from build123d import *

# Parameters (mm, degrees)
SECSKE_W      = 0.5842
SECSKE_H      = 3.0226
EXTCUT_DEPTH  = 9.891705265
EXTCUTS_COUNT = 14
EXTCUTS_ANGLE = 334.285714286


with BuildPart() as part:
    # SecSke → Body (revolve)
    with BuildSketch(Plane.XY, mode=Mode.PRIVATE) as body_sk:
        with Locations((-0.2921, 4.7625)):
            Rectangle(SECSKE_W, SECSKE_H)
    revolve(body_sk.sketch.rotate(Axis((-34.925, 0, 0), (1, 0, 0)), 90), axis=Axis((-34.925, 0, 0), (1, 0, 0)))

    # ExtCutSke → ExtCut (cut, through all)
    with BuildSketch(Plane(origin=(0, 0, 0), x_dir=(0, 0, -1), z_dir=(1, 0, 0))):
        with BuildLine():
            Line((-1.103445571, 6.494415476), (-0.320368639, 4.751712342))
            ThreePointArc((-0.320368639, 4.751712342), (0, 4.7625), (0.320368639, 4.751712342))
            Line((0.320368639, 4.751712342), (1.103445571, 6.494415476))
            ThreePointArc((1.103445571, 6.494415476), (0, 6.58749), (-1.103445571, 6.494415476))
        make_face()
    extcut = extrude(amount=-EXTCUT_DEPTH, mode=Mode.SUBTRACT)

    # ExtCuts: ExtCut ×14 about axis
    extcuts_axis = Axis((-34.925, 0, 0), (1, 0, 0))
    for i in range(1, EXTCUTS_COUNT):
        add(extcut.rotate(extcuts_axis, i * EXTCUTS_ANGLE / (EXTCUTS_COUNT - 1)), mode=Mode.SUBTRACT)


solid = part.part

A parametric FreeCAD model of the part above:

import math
import FreeCAD as App
import Part
import Sketcher
Q = App.Units.Quantity

doc = App.newDocument("Part")
body = doc.addObject("PartDesign::Body", "Body")

# Sketch on XY plane
sketch1 = doc.addObject("Sketcher::SketchObject", "Sketch")
body.addObject(sketch1)
sketch1.AttachmentSupport = (doc.XY_Plane, [""])
sketch1.MapMode = "FlatFace"
sketch1.addGeometry(Part.LineSegment(App.Vector(-0.6, 6.3, 0), App.Vector(-0.6, 3.3, 0)), False)
sketch1.addGeometry(Part.LineSegment(App.Vector(-0.6, 3.3, 0), App.Vector(0, 3.3, 0)), False)
sketch1.addGeometry(Part.LineSegment(App.Vector(0, 3.3, 0), App.Vector(0, 6.3, 0)), False)
sketch1.addGeometry(Part.LineSegment(App.Vector(0, 6.3, 0), App.Vector(-0.6, 6.3, 0)), False)
sketch1.addConstraint(Sketcher.Constraint("Coincident", 0, 2, 1, 1))
sketch1.addConstraint(Sketcher.Constraint("Coincident", 1, 2, 2, 1))
sketch1.addConstraint(Sketcher.Constraint("Coincident", 2, 2, 3, 1))
sketch1.addConstraint(Sketcher.Constraint("Coincident", 3, 2, 0, 1))
sketch1.addConstraint(Sketcher.Constraint("Vertical", 0))
sketch1.addConstraint(Sketcher.Constraint("Horizontal", 1))
sketch1.addConstraint(Sketcher.Constraint("Vertical", 2))
sketch1.addConstraint(Sketcher.Constraint("Horizontal", 3))
sketch1.addConstraint(Sketcher.Constraint("PointOnObject", 1, 2, -2))
sketch1.addConstraint(Sketcher.Constraint("DistanceX", 1, 1, 1, 2, Q("0.023 in")))
sketch1.addConstraint(Sketcher.Constraint("DistanceY", 0, 2, 0, 1, Q("0.119 in")))
sketch1.addConstraint(Sketcher.Constraint("DistanceY", -1, 1, 0, 2, Q("0.128 in")))
revolution = doc.addObject("PartDesign::Revolution", "Revolution")
body.addObject(revolution)
revolution.Profile = sketch1
revolution.ReferenceAxis = (sketch1, ["H_Axis"])
revolution.Angle = 360

# Sketch on YZ plane
sketch2 = doc.addObject("Sketcher::SketchObject", "Sketch001")
body.addObject(sketch2)
sketch2.AttachmentSupport = (doc.YZ_Plane, [""])
sketch2.MapMode = "FlatFace"
sketch2.addGeometry(Part.LineSegment(App.Vector(6.5, 1.1, 0), App.Vector(4.8, 0.3, 0)), False)
sketch2.addGeometry(Part.ArcOfCircle(Part.Circle(App.Vector(0, 0, 0), App.Vector(0, 0, 1), 4.8), math.radians(-3.86), math.radians(3.86)), False)
sketch2.addGeometry(Part.LineSegment(App.Vector(4.8, -0.3, 0), App.Vector(6.5, -1.1, 0)), False)
sketch2.addGeometry(Part.ArcOfCircle(Part.Circle(App.Vector(0, 0, 0), App.Vector(0, 0, 1), 6.6), math.radians(-9.64), math.radians(9.64)), False)
sketch2.addConstraint(Sketcher.Constraint("Coincident", 0, 2, 1, 2))
sketch2.addConstraint(Sketcher.Constraint("Coincident", 1, 1, 2, 1))
sketch2.addConstraint(Sketcher.Constraint("Coincident", 2, 2, 3, 1))
sketch2.addConstraint(Sketcher.Constraint("Coincident", 3, 2, 0, 1))
sketch2.addConstraint(Sketcher.Constraint("Coincident", 1, 3, -1, 1))
sketch2.addConstraint(Sketcher.Constraint("Coincident", 3, 3, -1, 1))
sketch2.addConstraint(Sketcher.Constraint("Vertical", 0, 2, 1, 1))
sketch2.addConstraint(Sketcher.Constraint("Vertical", 2, 2, 3, 2))
sketch2.addConstraint(Sketcher.Constraint("Radius", 1, Q("0.1875 in")))
sketch2.addConstraint(Sketcher.Constraint("Radius", 3, Q("6.58749 mm")))
sketch2.addConstraint(Sketcher.Constraint("DistanceY", -1, 1, 0, 2, Q("0.320369 mm")))
sketch2.addConstraint(Sketcher.Constraint("DistanceY", 2, 2, 3, 2, Q("2.206891 mm")))
pocket1 = doc.addObject("PartDesign::Pocket", "Pocket")
body.addObject(pocket1)
pocket1.Profile = sketch2
pocket1.Type = "ThroughAll"
doc.recompute()

polarpattern = doc.addObject("PartDesign::PolarPattern", "PolarPattern")
body.addObject(polarpattern)
polarpattern.Originals = [pocket1]
polarpattern.Axis = (doc.X_Axis, [""])
polarpattern.Angle = 360
polarpattern.Occurrences = 14
body.Tip = polarpattern

doc.recompute()
